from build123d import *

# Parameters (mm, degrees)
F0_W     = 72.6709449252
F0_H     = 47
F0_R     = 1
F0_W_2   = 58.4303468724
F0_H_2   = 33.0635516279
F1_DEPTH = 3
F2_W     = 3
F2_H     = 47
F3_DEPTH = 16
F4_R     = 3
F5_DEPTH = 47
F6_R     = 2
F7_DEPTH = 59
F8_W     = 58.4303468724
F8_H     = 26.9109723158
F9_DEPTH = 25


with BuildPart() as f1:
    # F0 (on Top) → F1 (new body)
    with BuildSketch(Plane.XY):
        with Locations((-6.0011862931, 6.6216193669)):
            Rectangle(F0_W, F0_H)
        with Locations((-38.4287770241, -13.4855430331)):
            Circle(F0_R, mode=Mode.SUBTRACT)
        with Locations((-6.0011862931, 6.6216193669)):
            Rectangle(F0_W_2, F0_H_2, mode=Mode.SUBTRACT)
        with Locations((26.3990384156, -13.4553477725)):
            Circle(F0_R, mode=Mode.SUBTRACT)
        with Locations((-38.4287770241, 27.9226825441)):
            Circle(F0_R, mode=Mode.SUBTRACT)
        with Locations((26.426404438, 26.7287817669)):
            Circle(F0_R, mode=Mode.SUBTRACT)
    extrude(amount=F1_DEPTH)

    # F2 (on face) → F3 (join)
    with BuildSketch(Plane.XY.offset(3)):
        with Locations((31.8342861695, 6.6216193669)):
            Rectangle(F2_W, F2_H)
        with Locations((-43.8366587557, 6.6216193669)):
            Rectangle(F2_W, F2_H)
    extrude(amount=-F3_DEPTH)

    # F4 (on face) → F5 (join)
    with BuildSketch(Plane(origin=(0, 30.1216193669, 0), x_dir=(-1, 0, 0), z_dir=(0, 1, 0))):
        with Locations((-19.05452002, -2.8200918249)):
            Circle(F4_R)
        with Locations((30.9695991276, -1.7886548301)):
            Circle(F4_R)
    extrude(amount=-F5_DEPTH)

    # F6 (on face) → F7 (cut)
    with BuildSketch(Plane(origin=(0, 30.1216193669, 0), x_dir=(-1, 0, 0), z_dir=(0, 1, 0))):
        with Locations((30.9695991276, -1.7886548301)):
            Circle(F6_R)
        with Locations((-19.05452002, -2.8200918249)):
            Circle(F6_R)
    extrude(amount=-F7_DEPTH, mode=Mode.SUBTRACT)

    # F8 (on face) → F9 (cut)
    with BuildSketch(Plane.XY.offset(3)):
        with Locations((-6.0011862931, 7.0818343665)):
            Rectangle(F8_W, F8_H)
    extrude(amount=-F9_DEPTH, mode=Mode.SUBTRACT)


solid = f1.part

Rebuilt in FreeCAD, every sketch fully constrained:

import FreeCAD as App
import Part
import Sketcher
Q = App.Units.Quantity


def add_polygon(sketch, points):
    """Adds a closed chain of lines whose ends are joined by coincident constraints."""
    first, n = sketch.GeometryCount, len(points)
    for a, b in zip(points, points[1:] + points[:1]):
        sketch.addGeometry(Part.LineSegment(App.Vector(*a, 0), App.Vector(*b, 0)), False)
    for i in range(n):
        sketch.addConstraint(Sketcher.Constraint("Coincident", first + i, 2, first + (i + 1) % n, 1))

doc = App.newDocument("Part")
params = doc.addObject("Spreadsheet::Sheet", "Params")
for row, (alias, value) in enumerate([
    ("sketch1_diameter", "2 mm"),
    ("sketch1_height", "47 mm"),
    ("pad1_length", "3 mm"),
    ("sketch2_width", "3 mm"),
    ("sketch2_height", "47 mm"),
    ("pad2_length", "16 mm"),
    ("sketch3_diameter", "6 mm"),
    ("pad3_length", "47 mm"),
    ("sketch4_diameter", "4 mm"),
    ("pocket1_length", "59 mm"),
    ("pocket2_length", "25 mm"),
], start=1):
    params.set(f"A{row}", alias)
    params.set(f"B{row}", "=" + value)
    params.setAlias(f"B{row}", alias)

body = doc.addObject("PartDesign::Body", "Body")

# Sketch on XY plane
sketch1 = doc.addObject("Sketcher::SketchObject", "Sketch")
body.addObject(sketch1)
sketch1.AttachmentSupport = (doc.XY_Plane, [""])
sketch1.MapMode = "FlatFace"
add_polygon(sketch1, [(-42.3, 30.1), (-42.3, -16.9), (30.3, -16.9), (30.3, 30.1)])  # lines 0-3
sketch1.addGeometry(Part.Circle(App.Vector(-38.4, -13.5, 0), App.Vector(0, 0, 1), 1), False)  # 4
add_polygon(sketch1, [(23.2, -9.9), (-35.2, -9.9), (-35.2, 23.2), (23.2, 23.2)])  # lines 5-8
sketch1.addGeometry(Part.Circle(App.Vector(26.4, -13.5, 0), App.Vector(0, 0, 1), 1), False)  # 9
sketch1.addGeometry(Part.Circle(App.Vector(-38.4, 27.9, 0), App.Vector(0, 0, 1), 1), False)  # 10
sketch1.addGeometry(Part.Circle(App.Vector(26.4, 26.7, 0), App.Vector(0, 0, 1), 1), False)  # 11
sketch1.addConstraint(Sketcher.Constraint("Vertical", 0))
sketch1.addConstraint(Sketcher.Constraint("Horizontal", 1))
sketch1.addConstraint(Sketcher.Constraint("Vertical", 2))
sketch1.addConstraint(Sketcher.Constraint("Horizontal", 3))
sketch1.addConstraint(Sketcher.Constraint("Horizontal", 5))
sketch1.addConstraint(Sketcher.Constraint("Vertical", 6))
sketch1.addConstraint(Sketcher.Constraint("Horizontal", 7))
sketch1.addConstraint(Sketcher.Constraint("Vertical", 8))
sketch1.addConstraint(Sketcher.Constraint("Equal", 4, 9))
sketch1.addConstraint(Sketcher.Constraint("Equal", 9, 10))
sketch1.addConstraint(Sketcher.Constraint("Equal", 10, 11))
sketch1.addConstraint(Sketcher.Constraint("Vertical", 4, 3, 10, 3))
sketch1.addConstraint(Sketcher.Constraint("Diameter", 4, Q("2 mm")))
sketch1.addConstraint(Sketcher.Constraint("DistanceY", 0, 2, 0, 1, Q("47 mm")))
sketch1.addConstraint(Sketcher.Constraint("DistanceY", 6, 1, 6, 2, Q("33.063552 mm")))
sketch1.addConstraint(Sketcher.Constraint("DistanceY", 11, 3, 10, 3, Q("1.193901 mm")))
sketch1.addConstraint(Sketcher.Constraint("DistanceX", 0, 2, 5, 2, Q("7.120299 mm")))
sketch1.addConstraint(Sketcher.Constraint("DistanceX", 5, 2, 9, 3, Q("61.615398 mm")))
sketch1.addConstraint(Sketcher.Constraint("DistanceX", 7, 2, 2, 2, Q("7.120299 mm")))
sketch1.addConstraint(Sketcher.Constraint("DistanceX", 1, 1, 1, 2, Q("72.670945 mm")))
sketch1.addConstraint(Sketcher.Constraint("DistanceX", -1, 1, 9, 3, Q("26.399038 mm")))
sketch1.addConstraint(Sketcher.Constraint("DistanceY", -1, 1, 11, 3, Q("26.728782 mm")))
sketch1.addConstraint(Sketcher.Constraint("DistanceY", 0, 2, -1, 1, Q("16.878381 mm")))
sketch1.addConstraint(Sketcher.Constraint("DistanceY", 9, 3, 10, 3, Q("41.37803 mm")))
sketch1.addConstraint(Sketcher.Constraint("DistanceX", 10, 3, 11, 3, Q("64.855181 mm")))
sketch1.addConstraint(Sketcher.Constraint("DistanceX", 0, 2, 4, 3, Q("3.907882 mm")))
sketch1.addConstraint(Sketcher.Constraint("DistanceY", 5, 2, 10, 3, Q("37.832839 mm")))
sketch1.addConstraint(Sketcher.Constraint("DistanceY", 4, 3, 6, 2, Q("36.638938 mm")))
sketch1.setExpression("Constraints[20]", "Params.sketch1_diameter")
sketch1.setExpression("Constraints[21]", "Params.sketch1_height")
pad1 = doc.addObject("PartDesign::Pad", "Pad")
body.addObject(pad1)
pad1.Profile = sketch1
pad1.setExpression("Length", "Params.pad1_length")

# Sketch on XY plane
sketch2 = doc.addObject("Sketcher::SketchObject", "Sketch001")
body.addObject(sketch2)
sketch2.AttachmentSupport = (doc.XY_Plane, [""])
sketch2.MapMode = "FlatFace"
sketch2.AttachmentOffset = App.Placement(App.Vector(0, 0, 3), App.Rotation())
add_polygon(sketch2, [(30.3, 30.1), (30.3, -16.9), (33.3, -16.9), (33.3, 30.1)])  # lines 0-3
add_polygon(sketch2, [(-45.3, 30.1), (-45.3, -16.9), (-42.3, -16.9), (-42.3, 30.1)])  # lines 4-7
sketch2.addConstraint(Sketcher.Constraint("Vertical", 0))
sketch2.addConstraint(Sketcher.Constraint("Horizontal", 1))
sketch2.addConstraint(Sketcher.Constraint("Vertical", 2))
sketch2.addConstraint(Sketcher.Constraint("Horizontal", 3))
sketch2.addConstraint(Sketcher.Constraint("Vertical", 4))
sketch2.addConstraint(Sketcher.Constraint("Horizontal", 5))
sketch2.addConstraint(Sketcher.Constraint("Vertical", 6))
sketch2.addConstraint(Sketcher.Constraint("Horizontal", 7))
sketch2.addConstraint(Sketcher.Constraint("Horizontal", 1, 2, 4, 2))
sketch2.addConstraint(Sketcher.Constraint("Horizontal", 3, 2, 6, 2))
sketch2.addConstraint(Sketcher.Constraint("Equal", 3, 5))
sketch2.addConstraint(Sketcher.Constraint("DistanceX", 1, 1, 1, 2, Q("3 mm")))
sketch2.addConstraint(Sketcher.Constraint("DistanceY", 0, 2, 0, 1, Q("47 mm")))
sketch2.addConstraint(Sketcher.Constraint("DistanceY", 0, 2, -1, 1, Q("16.878381 mm")))
sketch2.addConstraint(Sketcher.Constraint("DistanceX", 4, 2, -1, 1, Q("45.336659 mm")))
sketch2.addConstraint(Sketcher.Constraint("DistanceX", -1, 1, 0, 2, Q("30.334286 mm")))
sketch2.setExpression("Constraints[19]", "Params.sketch2_width")
sketch2.setExpression("Constraints[20]", "Params.sketch2_height")
pad2 = doc.addObject("PartDesign::Pad", "Pad001")
body.addObject(pad2)
pad2.Profile = sketch2
pad2.setExpression("Length", "Params.pad2_length")
pad2.Reversed = True

# Sketch on XZ plane
sketch3 = doc.addObject("Sketcher::SketchObject", "Sketch002")
body.addObject(sketch3)
sketch3.AttachmentSupport = (doc.XZ_Plane, [""])
sketch3.MapMode = "FlatFace"
sketch3.AttachmentOffset = App.Placement(App.Vector(0, 0, -30.121619), App.Rotation())
sketch3.addGeometry(Part.Circle(App.Vector(19.1, -2.8, 0), App.Vector(0, 0, 1), 3), False)
sketch3.addGeometry(Part.Circle(App.Vector(-31, -1.8, 0), App.Vector(0, 0, 1), 3), False)
sketch3.addConstraint(Sketcher.Constraint("Equal", 0, 1))
sketch3.addConstraint(Sketcher.Constraint("Diameter", 0, Q("6 mm")))
sketch3.addConstraint(Sketcher.Constraint("DistanceX", 1, 3, -1, 1, Q("30.969599 mm")))
sketch3.addConstraint(Sketcher.Constraint("DistanceX", -1, 1, 0, 3, Q("19.05452 mm")))
sketch3.addConstraint(Sketcher.Constraint("DistanceY", 0, 3, -1, 1, Q("2.820092 mm")))
sketch3.addConstraint(Sketcher.Constraint("DistanceY", 1, 3, -1, 1, Q("1.788655 mm")))
sketch3.setExpression("Constraints[1]", "Params.sketch3_diameter")
pad3 = doc.addObject("PartDesign::Pad", "Pad002")
body.addObject(pad3)
pad3.Profile = sketch3
pad3.setExpression("Length", "Params.pad3_length")

# Sketch on XZ plane
sketch4 = doc.addObject("Sketcher::SketchObject", "Sketch003")
body.addObject(sketch4)
sketch4.AttachmentSupport = (doc.XZ_Plane, [""])
sketch4.MapMode = "FlatFace"
sketch4.AttachmentOffset = App.Placement(App.Vector(0, 0, -30.121619), App.Rotation())
sketch4.addGeometry(Part.Circle(App.Vector(-31, -1.8, 0), App.Vector(0, 0, 1), 2), False)
sketch4.addGeometry(Part.Circle(App.Vector(19.1, -2.8, 0), App.Vector(0, 0, 1), 2), False)
sketch4.addConstraint(Sketcher.Constraint("Equal", 0, 1))
sketch4.addConstraint(Sketcher.Constraint("Diameter", 0, Q("4 mm")))
sketch4.addConstraint(Sketcher.Constraint("DistanceX", 0, 3, -1, 1, Q("30.969599 mm")))
sketch4.addConstraint(Sketcher.Constraint("DistanceX", -1, 1, 1, 3, Q("19.05452 mm")))
sketch4.addConstraint(Sketcher.Constraint("DistanceY", 1, 3, -1, 1, Q("2.820092 mm")))
sketch4.addConstraint(Sketcher.Constraint("DistanceY", 0, 3, -1, 1, Q("1.788655 mm")))
sketch4.setExpression("Constraints[1]", "Params.sketch4_diameter")
pocket1 = doc.addObject("PartDesign::Pocket", "Pocket")
body.addObject(pocket1)
pocket1.Profile = sketch4
pocket1.setExpression("Length", "Params.pocket1_length")
pocket1.Reversed = True

# Sketch on XY plane
sketch5 = doc.addObject("Sketcher::SketchObject", "Sketch004")
body.addObject(sketch5)
sketch5.AttachmentSupport = (doc.XY_Plane, [""])
sketch5.MapMode = "FlatFace"
sketch5.AttachmentOffset = App.Placement(App.Vector(0, 0, 3), App.Rotation())
add_polygon(sketch5, [(-35, 21), (-35, -6), (23, -6), (23, 21)])  # lines 0-3
sketch5.addConstraint(Sketcher.Constraint("Vertical", 0))
sketch5.addConstraint(Sketcher.Constraint("Horizontal", 1))
sketch5.addConstraint(Sketcher.Constraint("Vertical", 2))
sketch5.addConstraint(Sketcher.Constraint("Horizontal", 3))
sketch5.addConstraint(Sketcher.Constraint("DistanceX", 1, 1, 1, 2, Q("58.430347 mm")))
sketch5.addConstraint(Sketcher.Constraint("DistanceY", 0, 2, 0, 1, Q("26.910972 mm")))
sketch5.addConstraint(Sketcher.Constraint("DistanceX", 0, 2, -1, 1, Q("35.21636 mm")))
sketch5.addConstraint(Sketcher.Constraint("DistanceY", 0, 2, -1, 1, Q("6.373652 mm")))
pocket2 = doc.addObject("PartDesign::Pocket", "Pocket001")
body.addObject(pocket2)
pocket2.Profile = sketch5
pocket2.setExpression("Length", "Params.pocket2_length")

doc.recompute()
